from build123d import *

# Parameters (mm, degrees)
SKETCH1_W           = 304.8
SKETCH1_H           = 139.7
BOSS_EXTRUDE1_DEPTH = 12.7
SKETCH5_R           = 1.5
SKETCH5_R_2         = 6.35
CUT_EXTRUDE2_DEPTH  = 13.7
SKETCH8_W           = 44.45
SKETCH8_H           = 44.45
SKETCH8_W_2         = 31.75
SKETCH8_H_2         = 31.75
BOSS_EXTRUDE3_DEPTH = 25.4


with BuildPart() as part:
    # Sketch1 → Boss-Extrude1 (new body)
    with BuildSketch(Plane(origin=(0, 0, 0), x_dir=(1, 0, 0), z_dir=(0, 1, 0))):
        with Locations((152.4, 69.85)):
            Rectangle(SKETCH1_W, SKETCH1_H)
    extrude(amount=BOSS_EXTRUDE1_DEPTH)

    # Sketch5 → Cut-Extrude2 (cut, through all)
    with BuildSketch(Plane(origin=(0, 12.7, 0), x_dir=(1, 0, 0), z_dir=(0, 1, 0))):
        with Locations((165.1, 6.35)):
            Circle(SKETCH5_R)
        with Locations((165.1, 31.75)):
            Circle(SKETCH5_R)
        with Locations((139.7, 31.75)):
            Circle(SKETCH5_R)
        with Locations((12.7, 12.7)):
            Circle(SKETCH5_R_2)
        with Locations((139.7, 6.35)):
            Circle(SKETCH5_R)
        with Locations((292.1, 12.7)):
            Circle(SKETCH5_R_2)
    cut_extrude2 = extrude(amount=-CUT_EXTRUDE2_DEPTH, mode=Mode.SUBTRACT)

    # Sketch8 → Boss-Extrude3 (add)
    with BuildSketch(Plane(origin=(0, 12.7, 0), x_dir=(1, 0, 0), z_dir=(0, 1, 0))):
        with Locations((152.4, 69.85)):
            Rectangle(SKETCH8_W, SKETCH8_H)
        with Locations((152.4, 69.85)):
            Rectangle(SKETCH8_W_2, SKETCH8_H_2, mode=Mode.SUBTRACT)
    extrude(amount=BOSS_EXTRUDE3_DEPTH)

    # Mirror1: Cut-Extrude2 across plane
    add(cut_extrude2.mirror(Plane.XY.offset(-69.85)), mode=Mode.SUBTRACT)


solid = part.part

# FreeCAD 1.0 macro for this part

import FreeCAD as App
import Part
import Sketcher

V = App.Vector
Q = App.Units.Quantity

doc = App.newDocument("Part")
body = doc.addObject("PartDesign::Body", "Body")

# Sketch on XZ plane
sketch1 = body.newObject("Sketcher::SketchObject", "Sketch")
sketch1.AttachmentSupport = (doc.getObject("XZ_Plane"), [""])
sketch1.MapMode = "FlatFace"
sketch1.addGeometry([
    Part.LineSegment(V(0, -140, 0), V(0, 0, 0)),
    Part.LineSegment(V(0, 0, 0), V(305, 0, 0)),
    Part.LineSegment(V(305, 0, 0), V(305, -140, 0)),
    Part.LineSegment(V(305, -140, 0), V(0, -140, 0)),
], False)
sketch1.addConstraint([
    Sketcher.Constraint("Coincident", 0, 2, 1, 1),
    Sketcher.Constraint("Coincident", 1, 2, 2, 1),
    Sketcher.Constraint("Coincident", 2, 2, 3, 1),
    Sketcher.Constraint("Coincident", 3, 2, 0, 1),
    Sketcher.Constraint("Vertical", 0),
    Sketcher.Constraint("Horizontal", 1),
    Sketcher.Constraint("Vertical", 2),
    Sketcher.Constraint("Horizontal", 3),
    Sketcher.Constraint("Coincident", 0, 2, -1, 1),
    Sketcher.Constraint("DistanceX", 1, 1, 1, 2, Q("12 in")),
    Sketcher.Constraint("DistanceY", 0, 1, 0, 2, Q("5.5 in")),
])
pad1 = body.newObject("PartDesign::Pad", "Pad")
pad1.Profile = sketch1
pad1.Length = Q("0.5 in")
pad1.Reversed = True

# Sketch on XZ plane
sketch2 = body.newObject("Sketcher::SketchObject", "Sketch001")
sketch2.AttachmentSupport = (doc.getObject("XZ_Plane"), [""])
sketch2.MapMode = "FlatFace"
sketch2.AttachmentOffset = App.Placement(V(0, 0, -0.5 * 25.4), App.Rotation())
sketch2.addGeometry([
    Part.Circle(V(165.1, -6.3, 0), V(0, 0, 1), 1.5),  # 0
    Part.Circle(V(165.1, -31.8, 0), V(0, 0, 1), 1.5),  # 1
    Part.Circle(V(139.7, -31.8, 0), V(0, 0, 1), 1.5),  # 2
    Part.Circle(V(12.7, -12.7, 0), V(0, 0, 1), 6.3),  # 3
    Part.Circle(V(139.7, -6.3, 0), V(0, 0, 1), 1.5),  # 4
    Part.Circle(V(292.1, -12.7, 0), V(0, 0, 1), 6.3),  # 5
], False)
sketch2.addConstraint([
    Sketcher.Constraint("Equal", 0, 1),
    Sketcher.Constraint("Equal", 1, 2),
    Sketcher.Constraint("Equal", 2, 4),
    Sketcher.Constraint("Equal", 3, 5),
    Sketcher.Constraint("Horizontal", 1, 3, 2, 3),
    Sketcher.Constraint("Horizontal", 0, 3, 4, 3),
    Sketcher.Constraint("Horizontal", 3, 3, 5, 3),
    Sketcher.Constraint("Vertical", 0, 3, 1, 3),
    Sketcher.Constraint("Vertical", 2, 3, 4, 3),
    Sketcher.Constraint("Diameter", 3, Q("0.5 in")),
    Sketcher.Constraint("DistanceY", 1, 3, 0, 3, Q("1 in")),
    Sketcher.Constraint("DistanceX", 2, 3, 1, 3, Q("1 in")),
    Sketcher.Constraint("DistanceX", 3, 3, 2, 3, Q("5 in")),
    Sketcher.Constraint("DistanceX", 0, 3, 5, 3, Q("5 in")),
    Sketcher.Constraint("DistanceX", -1, 1, 0, 3, Q("6.5 in")),
    Sketcher.Constraint("DistanceY", 3, 3, -1, 1, Q("0.5 in")),
    Sketcher.Constraint("Diameter", 0, Q("3 mm")),
    Sketcher.Constraint("DistanceY", 0, 3, -1, 1, Q("0.25 in")),
])
pocket1 = body.newObject("PartDesign::Pocket", "Pocket")
pocket1.Profile = sketch2
pocket1.Type = "ThroughAll"
pocket1.Reversed = True

# Sketch on XZ plane
sketch3 = body.newObject("Sketcher::SketchObject", "Sketch002")
sketch3.AttachmentSupport = (doc.getObject("XZ_Plane"), [""])
sketch3.MapMode = "FlatFace"
sketch3.AttachmentOffset = App.Placement(V(0, 0, -0.5 * 25.4), App.Rotation())
sketch3.addGeometry([
    Part.LineSegment(V(130, -92, 0), V(130, -48, 0)),  # 0
    Part.LineSegment(V(130, -48, 0), V(175, -48, 0)),  # 1
    Part.LineSegment(V(175, -48, 0), V(175, -92, 0)),  # 2
    Part.LineSegment(V(175, -92, 0), V(130, -92, 0)),  # 3
    Part.LineSegment(V(168, -54, 0), V(137, -54, 0)),  # 4
    Part.LineSegment(V(137, -54, 0), V(137, -86, 0)),  # 5
    Part.LineSegment(V(137, -86, 0), V(168, -86, 0)),  # 6
    Part.LineSegment(V(168, -86, 0), V(168, -54, 0)),  # 7
], False)
sketch3.addConstraint([
    Sketcher.Constraint("Coincident", 0, 2, 1, 1),
    Sketcher.Constraint("Coincident", 1, 2, 2, 1),
    Sketcher.Constraint("Coincident", 2, 2, 3, 1),
    Sketcher.Constraint("Coincident", 3, 2, 0, 1),
    Sketcher.Constraint("Coincident", 4, 2, 5, 1),
    Sketcher.Constraint("Coincident", 5, 2, 6, 1),
    Sketcher.Constraint("Coincident", 6, 2, 7, 1),
    Sketcher.Constraint("Coincident", 7, 2, 4, 1),
    Sketcher.Constraint("Vertical", 0),
    Sketcher.Constraint("Horizontal", 1),
    Sketcher.Constraint("Vertical", 2),
    Sketcher.Constraint("Horizontal", 3),
    Sketcher.Constraint("Horizontal", 4),
    Sketcher.Constraint("Vertical", 5),
    Sketcher.Constraint("Horizontal", 6),
    Sketcher.Constraint("Vertical", 7),
    Sketcher.Constraint("Equal", 3, 0),
    Sketcher.Constraint("Equal", 6, 5),
    Sketcher.Constraint("DistanceX", 1, 1, 1, 2, Q("1.75 in")),
    Sketcher.Constraint("DistanceX", 4, 2, 4, 1, Q("1.25 in")),
    Sketcher.Constraint("DistanceX", 4, 2, 1, 2, Q("1.5 in")),
    Sketcher.Constraint("DistanceY", 3, 2, 4, 2, Q("1.5 in")),
    Sketcher.Constraint("DistanceX", -1, 1, 0, 2, Q("5.125 in")),
    Sketcher.Constraint("DistanceY", 0, 2, -1, 1, Q("1.875 in")),
])
pad2 = body.newObject("PartDesign::Pad", "Pad001")
pad2.Profile = sketch3
pad2.Length = Q("1 in")
pad2.Reversed = True
doc.recompute()

datumplane = body.newObject("PartDesign::Plane", "DatumPlane")
datumplane.AttachmentSupport = (doc.getObject("XY_Plane"), [""])
datumplane.MapMode = "FlatFace"
datumplane.AttachmentOffset = App.Placement(V(0, 0, -2.75 * 25.4), App.Rotation())
mirrored = body.newObject("PartDesign::Mirrored", "Mirrored")
mirrored.Originals = [pocket1]
mirrored.MirrorPlane = (datumplane, [""])
body.Tip = mirrored

doc.recompute()
